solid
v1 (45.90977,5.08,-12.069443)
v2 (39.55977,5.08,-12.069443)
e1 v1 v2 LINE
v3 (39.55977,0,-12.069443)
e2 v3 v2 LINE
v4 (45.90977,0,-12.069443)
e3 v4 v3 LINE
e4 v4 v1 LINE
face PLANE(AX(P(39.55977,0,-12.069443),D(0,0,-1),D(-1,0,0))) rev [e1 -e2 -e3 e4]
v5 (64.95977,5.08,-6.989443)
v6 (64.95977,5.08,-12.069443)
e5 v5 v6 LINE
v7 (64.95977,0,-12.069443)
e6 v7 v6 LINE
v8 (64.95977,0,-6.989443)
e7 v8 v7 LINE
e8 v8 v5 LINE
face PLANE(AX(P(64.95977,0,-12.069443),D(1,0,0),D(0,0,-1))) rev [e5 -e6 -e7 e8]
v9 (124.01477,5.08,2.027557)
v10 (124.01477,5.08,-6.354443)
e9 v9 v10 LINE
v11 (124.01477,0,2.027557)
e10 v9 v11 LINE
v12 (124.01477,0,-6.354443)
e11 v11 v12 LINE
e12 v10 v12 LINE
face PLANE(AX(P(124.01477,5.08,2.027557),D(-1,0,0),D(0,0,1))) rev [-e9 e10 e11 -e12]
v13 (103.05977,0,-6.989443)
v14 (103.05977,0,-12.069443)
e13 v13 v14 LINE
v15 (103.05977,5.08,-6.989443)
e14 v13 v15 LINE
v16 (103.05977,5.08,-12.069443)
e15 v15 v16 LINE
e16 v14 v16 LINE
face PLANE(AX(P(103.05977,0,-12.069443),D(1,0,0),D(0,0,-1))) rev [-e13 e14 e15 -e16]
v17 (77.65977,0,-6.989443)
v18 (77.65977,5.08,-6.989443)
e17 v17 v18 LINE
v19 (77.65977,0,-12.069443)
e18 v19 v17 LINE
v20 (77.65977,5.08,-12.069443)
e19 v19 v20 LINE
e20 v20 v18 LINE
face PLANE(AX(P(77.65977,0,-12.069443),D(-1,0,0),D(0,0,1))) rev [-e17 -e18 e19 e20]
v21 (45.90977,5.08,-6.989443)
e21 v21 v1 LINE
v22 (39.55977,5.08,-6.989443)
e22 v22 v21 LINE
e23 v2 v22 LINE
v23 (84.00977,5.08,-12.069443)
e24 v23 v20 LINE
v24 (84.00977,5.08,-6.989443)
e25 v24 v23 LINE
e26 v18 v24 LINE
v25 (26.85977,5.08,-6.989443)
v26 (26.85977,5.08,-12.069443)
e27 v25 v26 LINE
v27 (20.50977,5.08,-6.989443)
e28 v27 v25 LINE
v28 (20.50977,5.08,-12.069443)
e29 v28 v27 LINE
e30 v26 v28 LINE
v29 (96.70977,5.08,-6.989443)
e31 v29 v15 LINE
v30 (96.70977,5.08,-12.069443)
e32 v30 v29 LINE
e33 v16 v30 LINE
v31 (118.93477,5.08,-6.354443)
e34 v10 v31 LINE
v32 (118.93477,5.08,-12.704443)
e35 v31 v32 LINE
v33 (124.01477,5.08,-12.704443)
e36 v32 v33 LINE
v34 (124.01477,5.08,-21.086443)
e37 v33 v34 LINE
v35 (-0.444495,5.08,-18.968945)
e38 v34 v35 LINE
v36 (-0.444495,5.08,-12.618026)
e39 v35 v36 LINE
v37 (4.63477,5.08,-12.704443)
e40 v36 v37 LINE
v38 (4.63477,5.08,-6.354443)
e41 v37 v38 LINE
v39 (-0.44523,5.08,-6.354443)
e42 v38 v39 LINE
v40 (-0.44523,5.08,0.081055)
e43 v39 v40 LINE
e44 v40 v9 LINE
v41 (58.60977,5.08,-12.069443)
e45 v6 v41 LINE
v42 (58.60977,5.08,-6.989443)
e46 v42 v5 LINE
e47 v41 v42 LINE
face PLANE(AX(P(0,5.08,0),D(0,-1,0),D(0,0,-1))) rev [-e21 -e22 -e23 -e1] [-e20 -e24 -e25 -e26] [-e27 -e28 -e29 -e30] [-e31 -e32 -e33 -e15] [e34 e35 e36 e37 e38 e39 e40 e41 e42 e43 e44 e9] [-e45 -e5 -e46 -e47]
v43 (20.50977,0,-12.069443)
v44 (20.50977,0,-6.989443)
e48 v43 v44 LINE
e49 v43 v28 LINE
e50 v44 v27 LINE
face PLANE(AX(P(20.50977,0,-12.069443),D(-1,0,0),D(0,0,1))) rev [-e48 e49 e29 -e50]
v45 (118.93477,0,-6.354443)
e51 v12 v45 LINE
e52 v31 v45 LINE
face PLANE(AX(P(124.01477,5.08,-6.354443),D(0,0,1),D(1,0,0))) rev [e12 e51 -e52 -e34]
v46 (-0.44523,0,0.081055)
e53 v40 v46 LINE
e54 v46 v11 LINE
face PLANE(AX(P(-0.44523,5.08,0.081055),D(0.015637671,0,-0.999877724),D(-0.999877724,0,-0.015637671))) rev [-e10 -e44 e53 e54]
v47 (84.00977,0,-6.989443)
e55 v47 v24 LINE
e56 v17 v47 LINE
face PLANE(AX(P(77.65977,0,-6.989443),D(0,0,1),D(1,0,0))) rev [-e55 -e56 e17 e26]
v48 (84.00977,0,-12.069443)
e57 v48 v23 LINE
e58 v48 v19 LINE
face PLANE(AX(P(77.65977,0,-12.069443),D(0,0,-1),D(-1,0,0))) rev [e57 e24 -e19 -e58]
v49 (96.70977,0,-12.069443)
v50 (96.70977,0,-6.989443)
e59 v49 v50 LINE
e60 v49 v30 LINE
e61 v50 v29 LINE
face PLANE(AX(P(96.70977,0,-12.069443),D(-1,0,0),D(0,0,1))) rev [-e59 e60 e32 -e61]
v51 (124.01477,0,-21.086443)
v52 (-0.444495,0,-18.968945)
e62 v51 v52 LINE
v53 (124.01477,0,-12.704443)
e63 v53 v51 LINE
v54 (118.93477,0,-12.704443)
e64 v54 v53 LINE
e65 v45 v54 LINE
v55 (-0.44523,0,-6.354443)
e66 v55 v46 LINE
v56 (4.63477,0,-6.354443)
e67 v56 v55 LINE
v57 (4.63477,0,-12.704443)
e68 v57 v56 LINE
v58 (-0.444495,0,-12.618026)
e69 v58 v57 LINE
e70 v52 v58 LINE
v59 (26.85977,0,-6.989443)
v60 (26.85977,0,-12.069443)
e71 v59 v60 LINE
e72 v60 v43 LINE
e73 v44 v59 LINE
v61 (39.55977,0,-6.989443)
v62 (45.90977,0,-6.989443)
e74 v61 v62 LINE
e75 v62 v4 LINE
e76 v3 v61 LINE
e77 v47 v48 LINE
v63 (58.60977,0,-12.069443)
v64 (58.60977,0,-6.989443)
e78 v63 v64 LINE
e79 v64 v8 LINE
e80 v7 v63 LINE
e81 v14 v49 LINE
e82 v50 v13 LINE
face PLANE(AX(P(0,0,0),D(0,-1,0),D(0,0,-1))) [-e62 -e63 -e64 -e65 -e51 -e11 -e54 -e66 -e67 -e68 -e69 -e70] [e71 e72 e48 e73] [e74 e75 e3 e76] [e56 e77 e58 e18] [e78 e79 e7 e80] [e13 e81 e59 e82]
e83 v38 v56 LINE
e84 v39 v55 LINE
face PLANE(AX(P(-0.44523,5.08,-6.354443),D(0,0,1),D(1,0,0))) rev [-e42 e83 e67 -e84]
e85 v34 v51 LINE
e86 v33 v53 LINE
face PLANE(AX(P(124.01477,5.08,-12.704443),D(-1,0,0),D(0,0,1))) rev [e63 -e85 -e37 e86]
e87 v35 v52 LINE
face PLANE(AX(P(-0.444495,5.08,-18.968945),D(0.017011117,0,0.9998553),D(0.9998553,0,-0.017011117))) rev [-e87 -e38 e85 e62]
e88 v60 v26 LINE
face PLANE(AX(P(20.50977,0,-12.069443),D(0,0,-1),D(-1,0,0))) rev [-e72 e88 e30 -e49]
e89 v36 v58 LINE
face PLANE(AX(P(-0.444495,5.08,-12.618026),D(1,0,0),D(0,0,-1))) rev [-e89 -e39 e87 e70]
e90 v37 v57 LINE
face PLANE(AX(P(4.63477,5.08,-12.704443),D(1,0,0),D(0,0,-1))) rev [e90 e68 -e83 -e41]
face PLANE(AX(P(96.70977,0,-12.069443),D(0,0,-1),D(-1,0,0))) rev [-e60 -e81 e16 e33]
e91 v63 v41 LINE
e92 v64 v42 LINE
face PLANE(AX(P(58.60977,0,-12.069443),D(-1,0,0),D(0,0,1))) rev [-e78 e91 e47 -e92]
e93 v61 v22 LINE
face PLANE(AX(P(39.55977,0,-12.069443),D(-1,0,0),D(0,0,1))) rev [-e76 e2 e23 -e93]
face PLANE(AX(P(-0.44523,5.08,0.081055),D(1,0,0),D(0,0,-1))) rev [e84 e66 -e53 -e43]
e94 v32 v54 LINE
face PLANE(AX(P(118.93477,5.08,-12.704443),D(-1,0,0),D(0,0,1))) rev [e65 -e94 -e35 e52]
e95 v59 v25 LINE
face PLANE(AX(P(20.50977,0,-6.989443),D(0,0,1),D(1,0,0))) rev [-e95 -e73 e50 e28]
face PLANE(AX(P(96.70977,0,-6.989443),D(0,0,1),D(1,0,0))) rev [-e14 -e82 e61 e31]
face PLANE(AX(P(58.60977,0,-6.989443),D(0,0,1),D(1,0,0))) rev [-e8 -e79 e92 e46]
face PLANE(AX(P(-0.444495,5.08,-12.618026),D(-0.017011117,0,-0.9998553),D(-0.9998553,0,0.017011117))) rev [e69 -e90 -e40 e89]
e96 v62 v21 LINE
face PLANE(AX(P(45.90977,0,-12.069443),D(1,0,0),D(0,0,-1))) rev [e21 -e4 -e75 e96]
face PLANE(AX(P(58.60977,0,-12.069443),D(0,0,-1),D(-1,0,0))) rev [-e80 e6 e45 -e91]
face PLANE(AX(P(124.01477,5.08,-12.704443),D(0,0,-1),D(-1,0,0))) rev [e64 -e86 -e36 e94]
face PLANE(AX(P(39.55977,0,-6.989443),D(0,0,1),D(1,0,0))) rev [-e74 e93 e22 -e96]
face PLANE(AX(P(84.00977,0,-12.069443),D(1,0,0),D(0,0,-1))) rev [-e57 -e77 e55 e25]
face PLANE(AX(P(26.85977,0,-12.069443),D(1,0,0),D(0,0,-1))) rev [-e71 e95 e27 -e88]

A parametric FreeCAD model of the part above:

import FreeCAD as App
import Part
import Sketcher
Q = App.Units.Quantity

doc = App.newDocument("Part")
body = doc.addObject("PartDesign::Body", "Body")

# Sketch on XZ plane
sketch1 = body.newObject("Sketcher::SketchObject", "Sketch")
sketch1.AttachmentSupport = (doc.getObject("XZ_Plane"), [""])
sketch1.MapMode = "FlatFace"
sketch1.addGeometry([
    Part.LineSegment(App.Vector(0, -19, 0), App.Vector(0, -13, 0)),  # 0
    Part.LineSegment(App.Vector(0, -13, 0), App.Vector(5, -13, 0)),  # 1
    Part.LineSegment(App.Vector(5, -13, 0), App.Vector(5, -6, 0)),  # 2
    Part.LineSegment(App.Vector(5, -6, 0), App.Vector(0, -6, 0)),  # 3
    Part.LineSegment(App.Vector(0, -6, 0), App.Vector(0, 0, 0)),  # 4
    Part.LineSegment(App.Vector(0, 0, 0), App.Vector(124, 2, 0)),  # 5
    Part.LineSegment(App.Vector(124, 2, 0), App.Vector(124, -6, 0)),  # 6
    Part.LineSegment(App.Vector(124, -6, 0), App.Vector(119, -6, 0)),  # 7
    Part.LineSegment(App.Vector(119, -6, 0), App.Vector(119, -13, 0)),  # 8
    Part.LineSegment(App.Vector(119, -13, 0), App.Vector(124, -13, 0)),  # 9
    Part.LineSegment(App.Vector(124, -13, 0), App.Vector(124, -21, 0)),  # 10
    Part.LineSegment(App.Vector(124, -21, 0), App.Vector(0, -19, 0)),  # 11
], False)
sketch1.addConstraint([
    Sketcher.Constraint("Coincident", 0, 2, 1, 1),
    Sketcher.Constraint("Coincident", 1, 2, 2, 1),
    Sketcher.Constraint("Coincident", 2, 2, 3, 1),
    Sketcher.Constraint("Coincident", 3, 2, 4, 1),
    Sketcher.Constraint("Coincident", 4, 2, 5, 1),
    Sketcher.Constraint("Coincident", 5, 2, 6, 1),
    Sketcher.Constraint("Coincident", 6, 2, 7, 1),
    Sketcher.Constraint("Coincident", 7, 2, 8, 1),
    Sketcher.Constraint("Coincident", 8, 2, 9, 1),
    Sketcher.Constraint("Coincident", 9, 2, 10, 1),
    Sketcher.Constraint("Coincident", 10, 2, 11, 1),
    Sketcher.Constraint("Coincident", 11, 2, 0, 1),
    Sketcher.Constraint("Vertical", 0),
    Sketcher.Constraint("Vertical", 2),
    Sketcher.Constraint("Horizontal", 3),
    Sketcher.Constraint("Vertical", 4),
    Sketcher.Constraint("Vertical", 6),
    Sketcher.Constraint("Horizontal", 7),
    Sketcher.Constraint("Vertical", 8),
    Sketcher.Constraint("Horizontal", 9),
    Sketcher.Constraint("Vertical", 10),
    Sketcher.Constraint("Parallel", 1, 11),
    Sketcher.Constraint("Horizontal", 3, 2, 6, 2),
    Sketcher.Constraint("Horizontal", 1, 2, 8, 2),
    Sketcher.Constraint("Vertical", 6, 2, 9, 2),
    Sketcher.Constraint("Equal", 3, 7),
    Sketcher.Constraint("Equal", 6, 10),
    Sketcher.Constraint("DistanceX", 3, 2, 3, 1, Q("0.2 in")),
    Sketcher.Constraint("Distance", 1, Q("0.2 in")),
    Sketcher.Constraint("DistanceY", 2, 1, 2, 2, Q("0.25 in")),
    Sketcher.Constraint("DistanceY", 6, 2, 6, 1, Q("0.33 in")),
    Sketcher.Constraint("DistanceX", 2, 2, 5, 2, Q("4.7 in")),
    Sketcher.Constraint("DistanceY", 11, 2, 4, 2, Q("0.75 in")),
    Sketcher.Constraint("DistanceX", 0, 2, -1, 1, Q("0.0174998 in")),
    Sketcher.Constraint("DistanceY", 0, 1, 0, 2, 6.350919),
    Sketcher.Constraint("DistanceY", 0, 2, -1, 1, 12.618026),
])
pad1 = body.newObject("PartDesign::Pad", "Pad")
pad1.Profile = sketch1
pad1.Length = Q("0.2 in")
pad1.Reversed = True

# Sketch on XZ plane
sketch2 = body.newObject("Sketcher::SketchObject", "Sketch001")
sketch2.AttachmentSupport = (doc.getObject("XZ_Plane"), [""])
sketch2.MapMode = "FlatFace"
sketch2.AttachmentOffset = App.Placement(App.Vector(0, 0, -0.2 * 25.4), App.Rotation())
sketch2.addGeometry([
    Part.LineSegment(App.Vector(21, -12, 0), App.Vector(21, -7, 0)),
    Part.LineSegment(App.Vector(21, -7, 0), App.Vector(27, -7, 0)),
    Part.LineSegment(App.Vector(27, -7, 0), App.Vector(27, -12, 0)),
    Part.LineSegment(App.Vector(27, -12, 0), App.Vector(21, -12, 0)),
], False)
sketch2.addConstraint([
    Sketcher.Constraint("Coincident", 0, 2, 1, 1),
    Sketcher.Constraint("Coincident", 1, 2, 2, 1),
    Sketcher.Constraint("Coincident", 2, 2, 3, 1),
    Sketcher.Constraint("Coincident", 3, 2, 0, 1),
    Sketcher.Constraint("Vertical", 0),
    Sketcher.Constraint("Horizontal", 1),
    Sketcher.Constraint("Vertical", 2),
    Sketcher.Constraint("Horizontal", 3),
    Sketcher.Constraint("DistanceY", 0, 1, 0, 2, Q("0.2 in")),
    Sketcher.Constraint("DistanceX", 1, 1, 1, 2, Q("0.25 in")),
    Sketcher.Constraint("DistanceX", -1, 1, 0, 2, 20.50977),
    Sketcher.Constraint("DistanceY", 0, 2, -1, 1, 6.989443),
])
pocket1 = body.newObject("PartDesign::Pocket", "Pocket")
pocket1.Profile = sketch2
pocket1.Type = "ThroughAll"
pocket1.Reversed = True
doc.recompute()

linearpattern = body.newObject("PartDesign::LinearPattern", "LinearPattern")
linearpattern.Originals = [pocket1]
linearpattern.Direction = (doc.getObject("X_Axis"), [""])
linearpattern.Mode = "offset"
linearpattern.Offset = Q("0.75 in")
linearpattern.Occurrences = 5
body.Tip = linearpattern

doc.recompute()
